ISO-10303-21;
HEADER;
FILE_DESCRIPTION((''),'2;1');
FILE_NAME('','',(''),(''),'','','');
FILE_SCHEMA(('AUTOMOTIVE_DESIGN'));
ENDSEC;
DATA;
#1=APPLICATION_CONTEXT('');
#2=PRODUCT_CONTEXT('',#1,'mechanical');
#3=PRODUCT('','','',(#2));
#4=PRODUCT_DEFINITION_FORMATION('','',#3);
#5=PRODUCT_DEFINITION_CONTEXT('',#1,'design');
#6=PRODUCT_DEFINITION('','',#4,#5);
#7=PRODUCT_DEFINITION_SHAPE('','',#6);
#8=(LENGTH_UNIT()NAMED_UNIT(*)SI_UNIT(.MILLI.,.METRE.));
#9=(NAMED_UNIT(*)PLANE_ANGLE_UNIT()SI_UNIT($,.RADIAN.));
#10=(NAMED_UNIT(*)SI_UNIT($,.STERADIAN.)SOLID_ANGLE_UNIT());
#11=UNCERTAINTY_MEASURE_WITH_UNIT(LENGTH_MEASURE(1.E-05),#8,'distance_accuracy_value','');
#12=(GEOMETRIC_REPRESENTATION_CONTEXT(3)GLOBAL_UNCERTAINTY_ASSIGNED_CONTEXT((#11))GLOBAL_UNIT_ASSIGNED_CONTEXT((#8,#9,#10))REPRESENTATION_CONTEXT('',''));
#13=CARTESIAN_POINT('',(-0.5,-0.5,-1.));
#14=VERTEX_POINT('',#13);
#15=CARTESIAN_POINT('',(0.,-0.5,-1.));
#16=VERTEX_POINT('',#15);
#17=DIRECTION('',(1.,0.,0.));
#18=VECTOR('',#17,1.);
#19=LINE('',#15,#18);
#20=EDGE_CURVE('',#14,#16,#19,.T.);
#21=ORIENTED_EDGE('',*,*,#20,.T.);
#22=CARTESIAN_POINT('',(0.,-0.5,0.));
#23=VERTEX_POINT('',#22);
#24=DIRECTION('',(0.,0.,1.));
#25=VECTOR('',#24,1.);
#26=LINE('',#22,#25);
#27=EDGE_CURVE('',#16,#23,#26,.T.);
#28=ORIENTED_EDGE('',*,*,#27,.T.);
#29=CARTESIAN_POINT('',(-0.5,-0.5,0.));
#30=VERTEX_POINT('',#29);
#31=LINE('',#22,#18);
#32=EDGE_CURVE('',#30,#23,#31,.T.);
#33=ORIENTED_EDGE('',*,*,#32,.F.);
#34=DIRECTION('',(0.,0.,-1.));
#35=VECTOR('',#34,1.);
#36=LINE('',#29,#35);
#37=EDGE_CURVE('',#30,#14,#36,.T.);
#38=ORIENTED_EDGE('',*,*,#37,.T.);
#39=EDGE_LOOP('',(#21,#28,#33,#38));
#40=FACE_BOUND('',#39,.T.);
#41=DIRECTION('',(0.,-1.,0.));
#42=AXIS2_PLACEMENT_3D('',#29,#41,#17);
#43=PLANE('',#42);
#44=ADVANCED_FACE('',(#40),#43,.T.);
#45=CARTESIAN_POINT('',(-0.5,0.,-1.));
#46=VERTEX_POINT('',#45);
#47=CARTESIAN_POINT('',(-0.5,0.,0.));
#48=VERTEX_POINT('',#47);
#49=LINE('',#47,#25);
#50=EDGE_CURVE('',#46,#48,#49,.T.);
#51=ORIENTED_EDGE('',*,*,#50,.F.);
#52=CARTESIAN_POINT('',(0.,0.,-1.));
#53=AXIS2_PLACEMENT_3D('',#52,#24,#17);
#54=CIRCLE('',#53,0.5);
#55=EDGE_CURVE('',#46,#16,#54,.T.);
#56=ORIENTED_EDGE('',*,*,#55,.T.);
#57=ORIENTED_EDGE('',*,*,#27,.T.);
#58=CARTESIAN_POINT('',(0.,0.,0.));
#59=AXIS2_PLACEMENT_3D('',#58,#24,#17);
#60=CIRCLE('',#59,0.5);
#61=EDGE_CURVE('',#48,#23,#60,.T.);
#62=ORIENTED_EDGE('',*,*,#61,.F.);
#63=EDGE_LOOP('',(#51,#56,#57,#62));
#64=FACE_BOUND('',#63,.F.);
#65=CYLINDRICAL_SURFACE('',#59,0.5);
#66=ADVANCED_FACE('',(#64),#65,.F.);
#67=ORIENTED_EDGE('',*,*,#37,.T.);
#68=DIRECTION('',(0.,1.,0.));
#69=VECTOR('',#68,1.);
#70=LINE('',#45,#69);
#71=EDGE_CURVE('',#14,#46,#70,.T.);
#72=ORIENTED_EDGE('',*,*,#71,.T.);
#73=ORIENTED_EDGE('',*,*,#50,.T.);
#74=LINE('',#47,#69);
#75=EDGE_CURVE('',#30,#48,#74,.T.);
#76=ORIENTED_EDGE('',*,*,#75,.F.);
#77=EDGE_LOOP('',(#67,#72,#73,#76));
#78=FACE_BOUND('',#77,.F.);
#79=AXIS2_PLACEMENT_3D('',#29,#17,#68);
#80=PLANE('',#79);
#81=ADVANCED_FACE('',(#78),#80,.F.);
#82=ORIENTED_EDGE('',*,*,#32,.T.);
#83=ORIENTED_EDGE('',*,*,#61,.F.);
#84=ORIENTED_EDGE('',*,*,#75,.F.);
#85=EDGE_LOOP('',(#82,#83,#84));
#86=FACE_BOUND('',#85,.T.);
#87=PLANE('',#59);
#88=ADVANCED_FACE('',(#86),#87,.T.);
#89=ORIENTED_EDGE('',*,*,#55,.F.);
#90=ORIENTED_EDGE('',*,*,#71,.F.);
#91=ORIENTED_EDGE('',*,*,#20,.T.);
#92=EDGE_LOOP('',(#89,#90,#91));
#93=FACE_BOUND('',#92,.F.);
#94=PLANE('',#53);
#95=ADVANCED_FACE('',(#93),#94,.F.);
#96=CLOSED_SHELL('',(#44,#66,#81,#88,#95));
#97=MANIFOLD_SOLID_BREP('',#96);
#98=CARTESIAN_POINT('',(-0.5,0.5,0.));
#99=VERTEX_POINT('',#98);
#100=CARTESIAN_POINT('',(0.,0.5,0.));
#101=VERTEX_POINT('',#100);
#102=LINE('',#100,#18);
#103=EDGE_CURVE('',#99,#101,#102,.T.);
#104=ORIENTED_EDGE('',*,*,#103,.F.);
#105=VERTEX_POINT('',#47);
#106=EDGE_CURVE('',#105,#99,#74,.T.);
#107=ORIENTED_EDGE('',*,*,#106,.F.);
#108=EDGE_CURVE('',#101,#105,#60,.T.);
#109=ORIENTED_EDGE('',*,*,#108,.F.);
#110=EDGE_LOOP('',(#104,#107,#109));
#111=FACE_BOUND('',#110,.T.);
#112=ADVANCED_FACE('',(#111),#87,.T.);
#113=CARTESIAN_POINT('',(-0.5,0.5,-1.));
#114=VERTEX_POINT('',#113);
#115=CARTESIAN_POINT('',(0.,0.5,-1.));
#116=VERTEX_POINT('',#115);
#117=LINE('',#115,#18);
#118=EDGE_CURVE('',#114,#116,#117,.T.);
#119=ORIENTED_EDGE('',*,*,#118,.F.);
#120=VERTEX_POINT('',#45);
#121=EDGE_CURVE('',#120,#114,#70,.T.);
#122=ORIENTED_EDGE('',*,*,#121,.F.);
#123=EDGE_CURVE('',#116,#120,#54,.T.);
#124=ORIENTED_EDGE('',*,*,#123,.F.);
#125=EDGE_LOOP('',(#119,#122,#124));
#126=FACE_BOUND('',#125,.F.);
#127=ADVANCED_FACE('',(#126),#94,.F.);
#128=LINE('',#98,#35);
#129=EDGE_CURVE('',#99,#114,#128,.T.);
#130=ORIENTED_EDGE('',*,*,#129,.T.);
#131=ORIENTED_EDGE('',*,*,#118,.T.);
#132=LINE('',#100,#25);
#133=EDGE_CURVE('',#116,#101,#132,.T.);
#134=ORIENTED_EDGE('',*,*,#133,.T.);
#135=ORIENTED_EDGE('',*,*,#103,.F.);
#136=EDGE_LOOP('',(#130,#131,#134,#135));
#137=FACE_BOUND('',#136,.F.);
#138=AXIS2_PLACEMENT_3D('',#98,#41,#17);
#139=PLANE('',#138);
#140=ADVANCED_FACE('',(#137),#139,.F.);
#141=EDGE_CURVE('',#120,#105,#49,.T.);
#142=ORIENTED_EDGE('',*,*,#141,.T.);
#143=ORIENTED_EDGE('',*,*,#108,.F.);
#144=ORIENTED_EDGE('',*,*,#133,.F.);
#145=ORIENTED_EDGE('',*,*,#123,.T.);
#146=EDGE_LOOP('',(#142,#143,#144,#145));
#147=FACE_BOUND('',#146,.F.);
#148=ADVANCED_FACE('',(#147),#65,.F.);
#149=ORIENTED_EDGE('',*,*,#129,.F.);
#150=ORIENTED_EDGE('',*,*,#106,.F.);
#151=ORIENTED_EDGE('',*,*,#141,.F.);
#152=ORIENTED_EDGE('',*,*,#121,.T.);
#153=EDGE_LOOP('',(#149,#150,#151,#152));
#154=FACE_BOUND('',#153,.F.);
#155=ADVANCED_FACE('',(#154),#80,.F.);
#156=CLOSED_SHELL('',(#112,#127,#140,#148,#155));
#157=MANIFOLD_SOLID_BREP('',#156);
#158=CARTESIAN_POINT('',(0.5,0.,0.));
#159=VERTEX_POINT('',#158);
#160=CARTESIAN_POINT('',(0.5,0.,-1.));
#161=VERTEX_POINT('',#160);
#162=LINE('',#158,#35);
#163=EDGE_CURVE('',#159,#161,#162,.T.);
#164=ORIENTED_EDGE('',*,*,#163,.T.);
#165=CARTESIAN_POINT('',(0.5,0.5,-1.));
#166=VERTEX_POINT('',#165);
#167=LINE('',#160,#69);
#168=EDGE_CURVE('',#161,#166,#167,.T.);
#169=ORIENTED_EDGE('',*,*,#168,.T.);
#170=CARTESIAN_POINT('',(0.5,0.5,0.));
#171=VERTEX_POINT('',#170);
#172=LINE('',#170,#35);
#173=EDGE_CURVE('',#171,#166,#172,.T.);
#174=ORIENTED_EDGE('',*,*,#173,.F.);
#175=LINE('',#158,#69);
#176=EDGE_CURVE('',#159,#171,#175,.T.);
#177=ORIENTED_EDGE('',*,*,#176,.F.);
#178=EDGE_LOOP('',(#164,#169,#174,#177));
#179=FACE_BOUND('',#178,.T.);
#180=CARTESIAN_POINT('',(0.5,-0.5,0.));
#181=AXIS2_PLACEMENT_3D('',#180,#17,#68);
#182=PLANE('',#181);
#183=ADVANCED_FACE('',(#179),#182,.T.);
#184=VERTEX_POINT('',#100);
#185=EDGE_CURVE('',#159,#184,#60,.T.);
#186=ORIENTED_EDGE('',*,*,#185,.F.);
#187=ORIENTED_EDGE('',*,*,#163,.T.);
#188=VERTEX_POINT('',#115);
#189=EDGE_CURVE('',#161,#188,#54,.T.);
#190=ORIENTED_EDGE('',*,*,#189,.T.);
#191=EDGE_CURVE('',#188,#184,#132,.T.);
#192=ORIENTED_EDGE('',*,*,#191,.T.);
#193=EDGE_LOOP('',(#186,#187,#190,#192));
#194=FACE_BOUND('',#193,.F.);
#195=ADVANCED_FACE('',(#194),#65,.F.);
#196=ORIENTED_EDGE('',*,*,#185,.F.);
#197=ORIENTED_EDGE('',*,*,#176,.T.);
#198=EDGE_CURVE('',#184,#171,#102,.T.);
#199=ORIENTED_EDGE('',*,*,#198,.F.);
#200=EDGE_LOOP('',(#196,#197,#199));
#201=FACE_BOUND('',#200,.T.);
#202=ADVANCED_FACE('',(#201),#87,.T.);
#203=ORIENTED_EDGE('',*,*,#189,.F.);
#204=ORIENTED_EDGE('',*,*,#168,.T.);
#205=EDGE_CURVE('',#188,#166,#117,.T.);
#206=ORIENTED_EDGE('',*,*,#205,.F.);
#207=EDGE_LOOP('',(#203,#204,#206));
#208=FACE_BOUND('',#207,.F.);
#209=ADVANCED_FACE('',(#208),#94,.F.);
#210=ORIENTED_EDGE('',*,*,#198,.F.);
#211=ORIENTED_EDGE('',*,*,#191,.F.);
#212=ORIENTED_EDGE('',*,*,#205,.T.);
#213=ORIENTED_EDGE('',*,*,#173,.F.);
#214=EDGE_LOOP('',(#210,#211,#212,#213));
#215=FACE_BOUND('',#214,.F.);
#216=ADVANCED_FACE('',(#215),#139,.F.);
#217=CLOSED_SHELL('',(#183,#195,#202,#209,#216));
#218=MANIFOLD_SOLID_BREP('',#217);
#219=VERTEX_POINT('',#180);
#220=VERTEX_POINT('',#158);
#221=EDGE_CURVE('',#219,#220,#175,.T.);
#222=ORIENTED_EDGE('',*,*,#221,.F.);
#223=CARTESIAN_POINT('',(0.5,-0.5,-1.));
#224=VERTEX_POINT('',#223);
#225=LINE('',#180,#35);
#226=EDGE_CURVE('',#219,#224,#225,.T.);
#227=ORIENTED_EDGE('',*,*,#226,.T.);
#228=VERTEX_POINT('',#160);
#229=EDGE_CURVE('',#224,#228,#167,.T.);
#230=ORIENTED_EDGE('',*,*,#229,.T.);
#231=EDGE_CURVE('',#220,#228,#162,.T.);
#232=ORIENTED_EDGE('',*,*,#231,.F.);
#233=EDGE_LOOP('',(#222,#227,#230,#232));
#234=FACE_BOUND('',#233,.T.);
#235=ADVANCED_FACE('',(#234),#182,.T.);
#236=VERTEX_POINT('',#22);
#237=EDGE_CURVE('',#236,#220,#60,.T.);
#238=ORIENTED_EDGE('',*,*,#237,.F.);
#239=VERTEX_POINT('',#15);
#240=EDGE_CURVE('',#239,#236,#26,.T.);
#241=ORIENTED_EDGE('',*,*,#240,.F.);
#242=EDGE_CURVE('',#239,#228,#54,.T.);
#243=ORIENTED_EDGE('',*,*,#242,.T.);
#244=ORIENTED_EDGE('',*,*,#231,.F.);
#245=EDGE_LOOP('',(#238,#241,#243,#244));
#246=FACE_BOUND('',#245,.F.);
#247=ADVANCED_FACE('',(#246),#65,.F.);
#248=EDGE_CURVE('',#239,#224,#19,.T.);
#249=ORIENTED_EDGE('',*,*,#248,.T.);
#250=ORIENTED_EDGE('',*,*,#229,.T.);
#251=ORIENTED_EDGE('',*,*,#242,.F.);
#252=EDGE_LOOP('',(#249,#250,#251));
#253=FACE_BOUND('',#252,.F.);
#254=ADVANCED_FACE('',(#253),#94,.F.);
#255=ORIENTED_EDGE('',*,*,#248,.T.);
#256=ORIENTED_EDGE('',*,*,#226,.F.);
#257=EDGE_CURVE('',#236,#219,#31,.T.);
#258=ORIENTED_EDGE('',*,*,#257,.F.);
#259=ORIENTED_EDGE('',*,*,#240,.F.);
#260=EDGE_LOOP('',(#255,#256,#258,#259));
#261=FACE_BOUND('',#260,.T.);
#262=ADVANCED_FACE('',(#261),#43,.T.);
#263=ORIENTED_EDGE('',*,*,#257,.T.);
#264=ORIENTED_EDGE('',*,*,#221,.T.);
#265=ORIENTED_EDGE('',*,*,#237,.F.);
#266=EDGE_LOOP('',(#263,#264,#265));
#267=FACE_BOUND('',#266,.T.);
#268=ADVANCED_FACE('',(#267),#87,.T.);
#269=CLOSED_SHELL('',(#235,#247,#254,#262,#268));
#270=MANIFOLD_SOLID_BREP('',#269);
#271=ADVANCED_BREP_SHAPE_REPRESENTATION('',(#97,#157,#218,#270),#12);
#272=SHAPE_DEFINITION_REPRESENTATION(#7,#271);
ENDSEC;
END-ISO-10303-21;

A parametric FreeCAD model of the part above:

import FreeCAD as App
import Part
import Sketcher

doc = App.newDocument("Part")
body = doc.addObject("PartDesign::Body", "Body")

# Sketch on XY plane
sketch1 = body.newObject("Sketcher::SketchObject", "Sketch")
sketch1.AttachmentSupport = (doc.getObject("XY_Plane"), [""])
sketch1.MapMode = "FlatFace"
sketch1.addGeometry(Part.Circle(App.Vector(0, 0, 0), App.Vector(0, 0, 1), 0.5), False)
sketch1.addConstraint([
    Sketcher.Constraint("Coincident", 0, 3, -1, 1),
    Sketcher.Constraint("Diameter", 0, 1.0),
])
pad1 = body.newObject("PartDesign::Pad", "Pad")
pad1.Profile = sketch1
pad1.Length = 1
pad1.Reversed = True
body2 = doc.addObject("PartDesign::Body", "Body001")
body2.AllowCompound = True

# Sketch on XY plane
sketch2 = body2.newObject("Sketcher::SketchObject", "Sketch001")
sketch2.AttachmentSupport = (doc.getObject("XY_Plane001"), [""])
sketch2.MapMode = "FlatFace"
sketch2.addGeometry([
    Part.LineSegment(App.Vector(-0.5, 0.5, 0), App.Vector(-0.5, -0.5, 0)),
    Part.LineSegment(App.Vector(-0.5, -0.5, 0), App.Vector(0.5, -0.5, 0)),
    Part.LineSegment(App.Vector(0.5, -0.5, 0), App.Vector(0.5, 0.5, 0)),
    Part.LineSegment(App.Vector(0.5, 0.5, 0), App.Vector(-0.5, 0.5, 0)),
], False)
sketch2.addConstraint([
    Sketcher.Constraint("Coincident", 0, 2, 1, 1),
    Sketcher.Constraint("Coincident", 1, 2, 2, 1),
    Sketcher.Constraint("Coincident", 2, 2, 3, 1),
    Sketcher.Constraint("Coincident", 3, 2, 0, 1),
    Sketcher.Constraint("Vertical", 0),
    Sketcher.Constraint("Horizontal", 1),
    Sketcher.Constraint("Vertical", 2),
    Sketcher.Constraint("Horizontal", 3),
    Sketcher.Constraint("Symmetric", 0, 2, 2, 2, -1, 1),
    Sketcher.Constraint("Equal", 3, 0),
    Sketcher.Constraint("DistanceX", 1, 1, 1, 2, 1.0),
])
pad2 = body2.newObject("PartDesign::Pad", "Pad001")
pad2.Profile = sketch2
pad2.Length = 1
pad2.Reversed = True
doc.recompute()

boolean = body2.newObject("PartDesign::Boolean", "Boolean")
boolean.Type = "Cut"
boolean.addObjects([body])

doc.recompute()
